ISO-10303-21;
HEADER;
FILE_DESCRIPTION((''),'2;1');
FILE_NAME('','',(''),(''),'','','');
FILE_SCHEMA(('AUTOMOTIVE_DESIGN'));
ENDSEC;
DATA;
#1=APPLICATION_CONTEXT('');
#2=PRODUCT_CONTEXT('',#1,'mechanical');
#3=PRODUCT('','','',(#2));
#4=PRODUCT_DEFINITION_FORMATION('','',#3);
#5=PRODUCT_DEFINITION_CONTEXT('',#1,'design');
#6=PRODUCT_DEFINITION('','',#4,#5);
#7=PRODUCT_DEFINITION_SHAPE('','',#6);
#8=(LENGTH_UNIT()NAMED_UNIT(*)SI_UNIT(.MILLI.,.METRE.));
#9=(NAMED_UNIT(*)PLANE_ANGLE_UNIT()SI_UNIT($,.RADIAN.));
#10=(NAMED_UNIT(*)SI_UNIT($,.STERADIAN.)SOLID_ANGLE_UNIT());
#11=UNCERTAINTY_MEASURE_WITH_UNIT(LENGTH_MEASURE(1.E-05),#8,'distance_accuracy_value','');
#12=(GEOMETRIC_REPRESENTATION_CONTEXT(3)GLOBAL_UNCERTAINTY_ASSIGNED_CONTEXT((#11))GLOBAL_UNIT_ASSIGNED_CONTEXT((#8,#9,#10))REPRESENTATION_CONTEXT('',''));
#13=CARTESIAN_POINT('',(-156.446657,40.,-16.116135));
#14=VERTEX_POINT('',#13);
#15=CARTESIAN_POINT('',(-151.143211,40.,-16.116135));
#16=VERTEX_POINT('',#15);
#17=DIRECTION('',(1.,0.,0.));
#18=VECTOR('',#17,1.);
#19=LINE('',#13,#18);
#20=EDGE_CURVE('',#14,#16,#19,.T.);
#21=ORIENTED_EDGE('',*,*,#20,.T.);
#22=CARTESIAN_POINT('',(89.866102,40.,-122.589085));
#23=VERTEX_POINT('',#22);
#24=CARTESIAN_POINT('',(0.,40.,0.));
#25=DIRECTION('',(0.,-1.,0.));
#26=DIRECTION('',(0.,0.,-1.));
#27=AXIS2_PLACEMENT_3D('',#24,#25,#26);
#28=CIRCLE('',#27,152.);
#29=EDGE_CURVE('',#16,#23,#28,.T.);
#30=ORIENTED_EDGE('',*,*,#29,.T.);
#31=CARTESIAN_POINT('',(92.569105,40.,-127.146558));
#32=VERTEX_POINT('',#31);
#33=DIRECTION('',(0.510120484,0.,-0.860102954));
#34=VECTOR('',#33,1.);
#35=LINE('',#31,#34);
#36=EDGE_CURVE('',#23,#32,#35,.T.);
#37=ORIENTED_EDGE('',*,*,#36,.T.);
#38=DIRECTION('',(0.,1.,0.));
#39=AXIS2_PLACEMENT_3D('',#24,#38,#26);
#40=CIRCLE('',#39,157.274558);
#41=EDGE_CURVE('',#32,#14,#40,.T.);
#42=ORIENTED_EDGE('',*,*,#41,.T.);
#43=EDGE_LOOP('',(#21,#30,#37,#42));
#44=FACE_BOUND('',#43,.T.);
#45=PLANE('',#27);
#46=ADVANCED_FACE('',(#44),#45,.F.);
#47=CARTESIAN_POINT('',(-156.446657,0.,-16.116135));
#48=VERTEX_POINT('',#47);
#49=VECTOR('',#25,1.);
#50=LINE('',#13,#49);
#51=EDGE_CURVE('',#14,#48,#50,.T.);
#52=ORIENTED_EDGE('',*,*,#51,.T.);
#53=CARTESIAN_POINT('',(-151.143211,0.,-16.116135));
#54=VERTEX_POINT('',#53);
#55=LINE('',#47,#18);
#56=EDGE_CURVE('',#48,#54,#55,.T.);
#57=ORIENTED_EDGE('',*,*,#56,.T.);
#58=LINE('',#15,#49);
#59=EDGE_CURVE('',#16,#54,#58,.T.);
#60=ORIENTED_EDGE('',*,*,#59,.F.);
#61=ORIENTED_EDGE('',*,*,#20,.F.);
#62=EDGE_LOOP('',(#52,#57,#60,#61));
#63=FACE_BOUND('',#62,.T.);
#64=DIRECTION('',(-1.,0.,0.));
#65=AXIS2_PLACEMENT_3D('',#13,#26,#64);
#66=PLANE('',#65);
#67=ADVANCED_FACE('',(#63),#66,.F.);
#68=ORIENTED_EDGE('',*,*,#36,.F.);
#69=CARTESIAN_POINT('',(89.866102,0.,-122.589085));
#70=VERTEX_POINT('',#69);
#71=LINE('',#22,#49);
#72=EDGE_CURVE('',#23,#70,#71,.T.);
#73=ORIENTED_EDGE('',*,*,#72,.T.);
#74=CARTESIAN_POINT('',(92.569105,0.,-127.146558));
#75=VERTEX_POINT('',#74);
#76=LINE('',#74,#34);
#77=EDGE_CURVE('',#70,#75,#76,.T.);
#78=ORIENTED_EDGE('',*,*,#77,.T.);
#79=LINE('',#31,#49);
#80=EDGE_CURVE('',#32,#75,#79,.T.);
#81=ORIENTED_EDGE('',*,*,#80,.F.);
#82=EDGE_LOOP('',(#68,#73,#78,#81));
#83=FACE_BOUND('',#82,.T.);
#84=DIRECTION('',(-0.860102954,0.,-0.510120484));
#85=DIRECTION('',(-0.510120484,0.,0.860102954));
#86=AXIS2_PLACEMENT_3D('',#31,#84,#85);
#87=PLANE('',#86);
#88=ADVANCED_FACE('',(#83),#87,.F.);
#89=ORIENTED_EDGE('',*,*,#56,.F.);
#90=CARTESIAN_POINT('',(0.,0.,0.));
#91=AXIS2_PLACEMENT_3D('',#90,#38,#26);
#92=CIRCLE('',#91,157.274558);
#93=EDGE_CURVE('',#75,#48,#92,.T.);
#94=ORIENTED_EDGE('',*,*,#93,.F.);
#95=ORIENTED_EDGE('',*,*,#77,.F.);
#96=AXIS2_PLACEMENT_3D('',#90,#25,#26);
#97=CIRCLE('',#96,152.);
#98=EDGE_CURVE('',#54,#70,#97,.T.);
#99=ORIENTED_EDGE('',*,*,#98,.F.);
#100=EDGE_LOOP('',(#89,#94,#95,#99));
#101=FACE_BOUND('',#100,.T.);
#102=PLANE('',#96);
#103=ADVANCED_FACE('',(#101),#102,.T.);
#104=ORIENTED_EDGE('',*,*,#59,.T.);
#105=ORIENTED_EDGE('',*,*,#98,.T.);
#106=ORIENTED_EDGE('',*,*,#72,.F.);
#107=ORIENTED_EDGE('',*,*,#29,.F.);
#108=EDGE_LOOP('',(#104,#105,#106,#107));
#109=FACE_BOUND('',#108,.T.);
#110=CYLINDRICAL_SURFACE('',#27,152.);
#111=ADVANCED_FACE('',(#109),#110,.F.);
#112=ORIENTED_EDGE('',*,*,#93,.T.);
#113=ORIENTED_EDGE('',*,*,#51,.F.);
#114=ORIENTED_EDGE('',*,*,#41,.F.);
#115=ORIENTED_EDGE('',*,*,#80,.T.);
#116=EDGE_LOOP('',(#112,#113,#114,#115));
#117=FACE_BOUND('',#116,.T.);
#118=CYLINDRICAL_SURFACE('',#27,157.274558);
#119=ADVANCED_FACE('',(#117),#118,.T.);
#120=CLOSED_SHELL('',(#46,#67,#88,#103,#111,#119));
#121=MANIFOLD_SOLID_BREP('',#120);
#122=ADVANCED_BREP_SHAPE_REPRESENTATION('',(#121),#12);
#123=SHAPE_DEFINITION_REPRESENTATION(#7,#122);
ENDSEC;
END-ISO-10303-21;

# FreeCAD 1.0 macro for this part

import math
import FreeCAD as App
import Part
import Sketcher
Q = App.Units.Quantity

doc = App.newDocument("Part")
params = doc.addObject("Spreadsheet::Sheet", "Params")
for row, (alias, value) in enumerate([
    ("sketch1_radius", "152 mm"),
    ("pad1_length", "40 mm"),
], start=1):
    params.set(f"A{row}", alias)
    params.set(f"B{row}", "=" + value)
    params.setAlias(f"B{row}", alias)

body = doc.addObject("PartDesign::Body", "Body")

# Sketch on XZ plane
sketch1 = body.newObject("Sketcher::SketchObject", "Sketch")
sketch1.AttachmentSupport = (doc.getObject("XZ_Plane"), [""])
sketch1.MapMode = "FlatFace"
sketch1.addGeometry([
    Part.LineSegment(App.Vector(-156, -16, 0), App.Vector(-151, -16, 0)),
    Part.ArcOfCircle(Part.Circle(App.Vector(0, 0, 0), App.Vector(0, 0, 1), 152), math.radians(-174), math.radians(-54)),
    Part.LineSegment(App.Vector(90, -123, 0), App.Vector(93, -127, 0)),
    Part.ArcOfCircle(Part.Circle(App.Vector(0, 0, 0), App.Vector(0, 0, 1), 157), math.radians(-174), math.radians(-54)),
], False)
sketch1.addConstraint([
    Sketcher.Constraint("Coincident", 0, 2, 1, 1),
    Sketcher.Constraint("Coincident", 1, 2, 2, 1),
    Sketcher.Constraint("Coincident", 2, 2, 3, 2),
    Sketcher.Constraint("Coincident", 3, 1, 0, 1),
    Sketcher.Constraint("Horizontal", 0),
    Sketcher.Constraint("Coincident", 1, 3, -1, 1),
    Sketcher.Constraint("Coincident", 3, 3, -1, 1),
    Sketcher.Constraint("Radius", 1, Q("152 mm")),
    Sketcher.Constraint("Radius", 3, Q("157.274558 mm")),
    Sketcher.Constraint("DistanceX", 0, 2, -1, 1, Q("151.143211 mm")),
    Sketcher.Constraint("DistanceY", 2, 2, -1, 1, Q("127.146558 mm")),
    Sketcher.Constraint("DistanceY", 1, 2, 0, 2, Q("106.47295 mm")),
])
sketch1.setExpression("Constraints[7]", "Params.sketch1_radius")
pad1 = body.newObject("PartDesign::Pad", "Pad")
pad1.Profile = sketch1
pad1.setExpression("Length", "Params.pad1_length")
pad1.Reversed = True

doc.recompute()
